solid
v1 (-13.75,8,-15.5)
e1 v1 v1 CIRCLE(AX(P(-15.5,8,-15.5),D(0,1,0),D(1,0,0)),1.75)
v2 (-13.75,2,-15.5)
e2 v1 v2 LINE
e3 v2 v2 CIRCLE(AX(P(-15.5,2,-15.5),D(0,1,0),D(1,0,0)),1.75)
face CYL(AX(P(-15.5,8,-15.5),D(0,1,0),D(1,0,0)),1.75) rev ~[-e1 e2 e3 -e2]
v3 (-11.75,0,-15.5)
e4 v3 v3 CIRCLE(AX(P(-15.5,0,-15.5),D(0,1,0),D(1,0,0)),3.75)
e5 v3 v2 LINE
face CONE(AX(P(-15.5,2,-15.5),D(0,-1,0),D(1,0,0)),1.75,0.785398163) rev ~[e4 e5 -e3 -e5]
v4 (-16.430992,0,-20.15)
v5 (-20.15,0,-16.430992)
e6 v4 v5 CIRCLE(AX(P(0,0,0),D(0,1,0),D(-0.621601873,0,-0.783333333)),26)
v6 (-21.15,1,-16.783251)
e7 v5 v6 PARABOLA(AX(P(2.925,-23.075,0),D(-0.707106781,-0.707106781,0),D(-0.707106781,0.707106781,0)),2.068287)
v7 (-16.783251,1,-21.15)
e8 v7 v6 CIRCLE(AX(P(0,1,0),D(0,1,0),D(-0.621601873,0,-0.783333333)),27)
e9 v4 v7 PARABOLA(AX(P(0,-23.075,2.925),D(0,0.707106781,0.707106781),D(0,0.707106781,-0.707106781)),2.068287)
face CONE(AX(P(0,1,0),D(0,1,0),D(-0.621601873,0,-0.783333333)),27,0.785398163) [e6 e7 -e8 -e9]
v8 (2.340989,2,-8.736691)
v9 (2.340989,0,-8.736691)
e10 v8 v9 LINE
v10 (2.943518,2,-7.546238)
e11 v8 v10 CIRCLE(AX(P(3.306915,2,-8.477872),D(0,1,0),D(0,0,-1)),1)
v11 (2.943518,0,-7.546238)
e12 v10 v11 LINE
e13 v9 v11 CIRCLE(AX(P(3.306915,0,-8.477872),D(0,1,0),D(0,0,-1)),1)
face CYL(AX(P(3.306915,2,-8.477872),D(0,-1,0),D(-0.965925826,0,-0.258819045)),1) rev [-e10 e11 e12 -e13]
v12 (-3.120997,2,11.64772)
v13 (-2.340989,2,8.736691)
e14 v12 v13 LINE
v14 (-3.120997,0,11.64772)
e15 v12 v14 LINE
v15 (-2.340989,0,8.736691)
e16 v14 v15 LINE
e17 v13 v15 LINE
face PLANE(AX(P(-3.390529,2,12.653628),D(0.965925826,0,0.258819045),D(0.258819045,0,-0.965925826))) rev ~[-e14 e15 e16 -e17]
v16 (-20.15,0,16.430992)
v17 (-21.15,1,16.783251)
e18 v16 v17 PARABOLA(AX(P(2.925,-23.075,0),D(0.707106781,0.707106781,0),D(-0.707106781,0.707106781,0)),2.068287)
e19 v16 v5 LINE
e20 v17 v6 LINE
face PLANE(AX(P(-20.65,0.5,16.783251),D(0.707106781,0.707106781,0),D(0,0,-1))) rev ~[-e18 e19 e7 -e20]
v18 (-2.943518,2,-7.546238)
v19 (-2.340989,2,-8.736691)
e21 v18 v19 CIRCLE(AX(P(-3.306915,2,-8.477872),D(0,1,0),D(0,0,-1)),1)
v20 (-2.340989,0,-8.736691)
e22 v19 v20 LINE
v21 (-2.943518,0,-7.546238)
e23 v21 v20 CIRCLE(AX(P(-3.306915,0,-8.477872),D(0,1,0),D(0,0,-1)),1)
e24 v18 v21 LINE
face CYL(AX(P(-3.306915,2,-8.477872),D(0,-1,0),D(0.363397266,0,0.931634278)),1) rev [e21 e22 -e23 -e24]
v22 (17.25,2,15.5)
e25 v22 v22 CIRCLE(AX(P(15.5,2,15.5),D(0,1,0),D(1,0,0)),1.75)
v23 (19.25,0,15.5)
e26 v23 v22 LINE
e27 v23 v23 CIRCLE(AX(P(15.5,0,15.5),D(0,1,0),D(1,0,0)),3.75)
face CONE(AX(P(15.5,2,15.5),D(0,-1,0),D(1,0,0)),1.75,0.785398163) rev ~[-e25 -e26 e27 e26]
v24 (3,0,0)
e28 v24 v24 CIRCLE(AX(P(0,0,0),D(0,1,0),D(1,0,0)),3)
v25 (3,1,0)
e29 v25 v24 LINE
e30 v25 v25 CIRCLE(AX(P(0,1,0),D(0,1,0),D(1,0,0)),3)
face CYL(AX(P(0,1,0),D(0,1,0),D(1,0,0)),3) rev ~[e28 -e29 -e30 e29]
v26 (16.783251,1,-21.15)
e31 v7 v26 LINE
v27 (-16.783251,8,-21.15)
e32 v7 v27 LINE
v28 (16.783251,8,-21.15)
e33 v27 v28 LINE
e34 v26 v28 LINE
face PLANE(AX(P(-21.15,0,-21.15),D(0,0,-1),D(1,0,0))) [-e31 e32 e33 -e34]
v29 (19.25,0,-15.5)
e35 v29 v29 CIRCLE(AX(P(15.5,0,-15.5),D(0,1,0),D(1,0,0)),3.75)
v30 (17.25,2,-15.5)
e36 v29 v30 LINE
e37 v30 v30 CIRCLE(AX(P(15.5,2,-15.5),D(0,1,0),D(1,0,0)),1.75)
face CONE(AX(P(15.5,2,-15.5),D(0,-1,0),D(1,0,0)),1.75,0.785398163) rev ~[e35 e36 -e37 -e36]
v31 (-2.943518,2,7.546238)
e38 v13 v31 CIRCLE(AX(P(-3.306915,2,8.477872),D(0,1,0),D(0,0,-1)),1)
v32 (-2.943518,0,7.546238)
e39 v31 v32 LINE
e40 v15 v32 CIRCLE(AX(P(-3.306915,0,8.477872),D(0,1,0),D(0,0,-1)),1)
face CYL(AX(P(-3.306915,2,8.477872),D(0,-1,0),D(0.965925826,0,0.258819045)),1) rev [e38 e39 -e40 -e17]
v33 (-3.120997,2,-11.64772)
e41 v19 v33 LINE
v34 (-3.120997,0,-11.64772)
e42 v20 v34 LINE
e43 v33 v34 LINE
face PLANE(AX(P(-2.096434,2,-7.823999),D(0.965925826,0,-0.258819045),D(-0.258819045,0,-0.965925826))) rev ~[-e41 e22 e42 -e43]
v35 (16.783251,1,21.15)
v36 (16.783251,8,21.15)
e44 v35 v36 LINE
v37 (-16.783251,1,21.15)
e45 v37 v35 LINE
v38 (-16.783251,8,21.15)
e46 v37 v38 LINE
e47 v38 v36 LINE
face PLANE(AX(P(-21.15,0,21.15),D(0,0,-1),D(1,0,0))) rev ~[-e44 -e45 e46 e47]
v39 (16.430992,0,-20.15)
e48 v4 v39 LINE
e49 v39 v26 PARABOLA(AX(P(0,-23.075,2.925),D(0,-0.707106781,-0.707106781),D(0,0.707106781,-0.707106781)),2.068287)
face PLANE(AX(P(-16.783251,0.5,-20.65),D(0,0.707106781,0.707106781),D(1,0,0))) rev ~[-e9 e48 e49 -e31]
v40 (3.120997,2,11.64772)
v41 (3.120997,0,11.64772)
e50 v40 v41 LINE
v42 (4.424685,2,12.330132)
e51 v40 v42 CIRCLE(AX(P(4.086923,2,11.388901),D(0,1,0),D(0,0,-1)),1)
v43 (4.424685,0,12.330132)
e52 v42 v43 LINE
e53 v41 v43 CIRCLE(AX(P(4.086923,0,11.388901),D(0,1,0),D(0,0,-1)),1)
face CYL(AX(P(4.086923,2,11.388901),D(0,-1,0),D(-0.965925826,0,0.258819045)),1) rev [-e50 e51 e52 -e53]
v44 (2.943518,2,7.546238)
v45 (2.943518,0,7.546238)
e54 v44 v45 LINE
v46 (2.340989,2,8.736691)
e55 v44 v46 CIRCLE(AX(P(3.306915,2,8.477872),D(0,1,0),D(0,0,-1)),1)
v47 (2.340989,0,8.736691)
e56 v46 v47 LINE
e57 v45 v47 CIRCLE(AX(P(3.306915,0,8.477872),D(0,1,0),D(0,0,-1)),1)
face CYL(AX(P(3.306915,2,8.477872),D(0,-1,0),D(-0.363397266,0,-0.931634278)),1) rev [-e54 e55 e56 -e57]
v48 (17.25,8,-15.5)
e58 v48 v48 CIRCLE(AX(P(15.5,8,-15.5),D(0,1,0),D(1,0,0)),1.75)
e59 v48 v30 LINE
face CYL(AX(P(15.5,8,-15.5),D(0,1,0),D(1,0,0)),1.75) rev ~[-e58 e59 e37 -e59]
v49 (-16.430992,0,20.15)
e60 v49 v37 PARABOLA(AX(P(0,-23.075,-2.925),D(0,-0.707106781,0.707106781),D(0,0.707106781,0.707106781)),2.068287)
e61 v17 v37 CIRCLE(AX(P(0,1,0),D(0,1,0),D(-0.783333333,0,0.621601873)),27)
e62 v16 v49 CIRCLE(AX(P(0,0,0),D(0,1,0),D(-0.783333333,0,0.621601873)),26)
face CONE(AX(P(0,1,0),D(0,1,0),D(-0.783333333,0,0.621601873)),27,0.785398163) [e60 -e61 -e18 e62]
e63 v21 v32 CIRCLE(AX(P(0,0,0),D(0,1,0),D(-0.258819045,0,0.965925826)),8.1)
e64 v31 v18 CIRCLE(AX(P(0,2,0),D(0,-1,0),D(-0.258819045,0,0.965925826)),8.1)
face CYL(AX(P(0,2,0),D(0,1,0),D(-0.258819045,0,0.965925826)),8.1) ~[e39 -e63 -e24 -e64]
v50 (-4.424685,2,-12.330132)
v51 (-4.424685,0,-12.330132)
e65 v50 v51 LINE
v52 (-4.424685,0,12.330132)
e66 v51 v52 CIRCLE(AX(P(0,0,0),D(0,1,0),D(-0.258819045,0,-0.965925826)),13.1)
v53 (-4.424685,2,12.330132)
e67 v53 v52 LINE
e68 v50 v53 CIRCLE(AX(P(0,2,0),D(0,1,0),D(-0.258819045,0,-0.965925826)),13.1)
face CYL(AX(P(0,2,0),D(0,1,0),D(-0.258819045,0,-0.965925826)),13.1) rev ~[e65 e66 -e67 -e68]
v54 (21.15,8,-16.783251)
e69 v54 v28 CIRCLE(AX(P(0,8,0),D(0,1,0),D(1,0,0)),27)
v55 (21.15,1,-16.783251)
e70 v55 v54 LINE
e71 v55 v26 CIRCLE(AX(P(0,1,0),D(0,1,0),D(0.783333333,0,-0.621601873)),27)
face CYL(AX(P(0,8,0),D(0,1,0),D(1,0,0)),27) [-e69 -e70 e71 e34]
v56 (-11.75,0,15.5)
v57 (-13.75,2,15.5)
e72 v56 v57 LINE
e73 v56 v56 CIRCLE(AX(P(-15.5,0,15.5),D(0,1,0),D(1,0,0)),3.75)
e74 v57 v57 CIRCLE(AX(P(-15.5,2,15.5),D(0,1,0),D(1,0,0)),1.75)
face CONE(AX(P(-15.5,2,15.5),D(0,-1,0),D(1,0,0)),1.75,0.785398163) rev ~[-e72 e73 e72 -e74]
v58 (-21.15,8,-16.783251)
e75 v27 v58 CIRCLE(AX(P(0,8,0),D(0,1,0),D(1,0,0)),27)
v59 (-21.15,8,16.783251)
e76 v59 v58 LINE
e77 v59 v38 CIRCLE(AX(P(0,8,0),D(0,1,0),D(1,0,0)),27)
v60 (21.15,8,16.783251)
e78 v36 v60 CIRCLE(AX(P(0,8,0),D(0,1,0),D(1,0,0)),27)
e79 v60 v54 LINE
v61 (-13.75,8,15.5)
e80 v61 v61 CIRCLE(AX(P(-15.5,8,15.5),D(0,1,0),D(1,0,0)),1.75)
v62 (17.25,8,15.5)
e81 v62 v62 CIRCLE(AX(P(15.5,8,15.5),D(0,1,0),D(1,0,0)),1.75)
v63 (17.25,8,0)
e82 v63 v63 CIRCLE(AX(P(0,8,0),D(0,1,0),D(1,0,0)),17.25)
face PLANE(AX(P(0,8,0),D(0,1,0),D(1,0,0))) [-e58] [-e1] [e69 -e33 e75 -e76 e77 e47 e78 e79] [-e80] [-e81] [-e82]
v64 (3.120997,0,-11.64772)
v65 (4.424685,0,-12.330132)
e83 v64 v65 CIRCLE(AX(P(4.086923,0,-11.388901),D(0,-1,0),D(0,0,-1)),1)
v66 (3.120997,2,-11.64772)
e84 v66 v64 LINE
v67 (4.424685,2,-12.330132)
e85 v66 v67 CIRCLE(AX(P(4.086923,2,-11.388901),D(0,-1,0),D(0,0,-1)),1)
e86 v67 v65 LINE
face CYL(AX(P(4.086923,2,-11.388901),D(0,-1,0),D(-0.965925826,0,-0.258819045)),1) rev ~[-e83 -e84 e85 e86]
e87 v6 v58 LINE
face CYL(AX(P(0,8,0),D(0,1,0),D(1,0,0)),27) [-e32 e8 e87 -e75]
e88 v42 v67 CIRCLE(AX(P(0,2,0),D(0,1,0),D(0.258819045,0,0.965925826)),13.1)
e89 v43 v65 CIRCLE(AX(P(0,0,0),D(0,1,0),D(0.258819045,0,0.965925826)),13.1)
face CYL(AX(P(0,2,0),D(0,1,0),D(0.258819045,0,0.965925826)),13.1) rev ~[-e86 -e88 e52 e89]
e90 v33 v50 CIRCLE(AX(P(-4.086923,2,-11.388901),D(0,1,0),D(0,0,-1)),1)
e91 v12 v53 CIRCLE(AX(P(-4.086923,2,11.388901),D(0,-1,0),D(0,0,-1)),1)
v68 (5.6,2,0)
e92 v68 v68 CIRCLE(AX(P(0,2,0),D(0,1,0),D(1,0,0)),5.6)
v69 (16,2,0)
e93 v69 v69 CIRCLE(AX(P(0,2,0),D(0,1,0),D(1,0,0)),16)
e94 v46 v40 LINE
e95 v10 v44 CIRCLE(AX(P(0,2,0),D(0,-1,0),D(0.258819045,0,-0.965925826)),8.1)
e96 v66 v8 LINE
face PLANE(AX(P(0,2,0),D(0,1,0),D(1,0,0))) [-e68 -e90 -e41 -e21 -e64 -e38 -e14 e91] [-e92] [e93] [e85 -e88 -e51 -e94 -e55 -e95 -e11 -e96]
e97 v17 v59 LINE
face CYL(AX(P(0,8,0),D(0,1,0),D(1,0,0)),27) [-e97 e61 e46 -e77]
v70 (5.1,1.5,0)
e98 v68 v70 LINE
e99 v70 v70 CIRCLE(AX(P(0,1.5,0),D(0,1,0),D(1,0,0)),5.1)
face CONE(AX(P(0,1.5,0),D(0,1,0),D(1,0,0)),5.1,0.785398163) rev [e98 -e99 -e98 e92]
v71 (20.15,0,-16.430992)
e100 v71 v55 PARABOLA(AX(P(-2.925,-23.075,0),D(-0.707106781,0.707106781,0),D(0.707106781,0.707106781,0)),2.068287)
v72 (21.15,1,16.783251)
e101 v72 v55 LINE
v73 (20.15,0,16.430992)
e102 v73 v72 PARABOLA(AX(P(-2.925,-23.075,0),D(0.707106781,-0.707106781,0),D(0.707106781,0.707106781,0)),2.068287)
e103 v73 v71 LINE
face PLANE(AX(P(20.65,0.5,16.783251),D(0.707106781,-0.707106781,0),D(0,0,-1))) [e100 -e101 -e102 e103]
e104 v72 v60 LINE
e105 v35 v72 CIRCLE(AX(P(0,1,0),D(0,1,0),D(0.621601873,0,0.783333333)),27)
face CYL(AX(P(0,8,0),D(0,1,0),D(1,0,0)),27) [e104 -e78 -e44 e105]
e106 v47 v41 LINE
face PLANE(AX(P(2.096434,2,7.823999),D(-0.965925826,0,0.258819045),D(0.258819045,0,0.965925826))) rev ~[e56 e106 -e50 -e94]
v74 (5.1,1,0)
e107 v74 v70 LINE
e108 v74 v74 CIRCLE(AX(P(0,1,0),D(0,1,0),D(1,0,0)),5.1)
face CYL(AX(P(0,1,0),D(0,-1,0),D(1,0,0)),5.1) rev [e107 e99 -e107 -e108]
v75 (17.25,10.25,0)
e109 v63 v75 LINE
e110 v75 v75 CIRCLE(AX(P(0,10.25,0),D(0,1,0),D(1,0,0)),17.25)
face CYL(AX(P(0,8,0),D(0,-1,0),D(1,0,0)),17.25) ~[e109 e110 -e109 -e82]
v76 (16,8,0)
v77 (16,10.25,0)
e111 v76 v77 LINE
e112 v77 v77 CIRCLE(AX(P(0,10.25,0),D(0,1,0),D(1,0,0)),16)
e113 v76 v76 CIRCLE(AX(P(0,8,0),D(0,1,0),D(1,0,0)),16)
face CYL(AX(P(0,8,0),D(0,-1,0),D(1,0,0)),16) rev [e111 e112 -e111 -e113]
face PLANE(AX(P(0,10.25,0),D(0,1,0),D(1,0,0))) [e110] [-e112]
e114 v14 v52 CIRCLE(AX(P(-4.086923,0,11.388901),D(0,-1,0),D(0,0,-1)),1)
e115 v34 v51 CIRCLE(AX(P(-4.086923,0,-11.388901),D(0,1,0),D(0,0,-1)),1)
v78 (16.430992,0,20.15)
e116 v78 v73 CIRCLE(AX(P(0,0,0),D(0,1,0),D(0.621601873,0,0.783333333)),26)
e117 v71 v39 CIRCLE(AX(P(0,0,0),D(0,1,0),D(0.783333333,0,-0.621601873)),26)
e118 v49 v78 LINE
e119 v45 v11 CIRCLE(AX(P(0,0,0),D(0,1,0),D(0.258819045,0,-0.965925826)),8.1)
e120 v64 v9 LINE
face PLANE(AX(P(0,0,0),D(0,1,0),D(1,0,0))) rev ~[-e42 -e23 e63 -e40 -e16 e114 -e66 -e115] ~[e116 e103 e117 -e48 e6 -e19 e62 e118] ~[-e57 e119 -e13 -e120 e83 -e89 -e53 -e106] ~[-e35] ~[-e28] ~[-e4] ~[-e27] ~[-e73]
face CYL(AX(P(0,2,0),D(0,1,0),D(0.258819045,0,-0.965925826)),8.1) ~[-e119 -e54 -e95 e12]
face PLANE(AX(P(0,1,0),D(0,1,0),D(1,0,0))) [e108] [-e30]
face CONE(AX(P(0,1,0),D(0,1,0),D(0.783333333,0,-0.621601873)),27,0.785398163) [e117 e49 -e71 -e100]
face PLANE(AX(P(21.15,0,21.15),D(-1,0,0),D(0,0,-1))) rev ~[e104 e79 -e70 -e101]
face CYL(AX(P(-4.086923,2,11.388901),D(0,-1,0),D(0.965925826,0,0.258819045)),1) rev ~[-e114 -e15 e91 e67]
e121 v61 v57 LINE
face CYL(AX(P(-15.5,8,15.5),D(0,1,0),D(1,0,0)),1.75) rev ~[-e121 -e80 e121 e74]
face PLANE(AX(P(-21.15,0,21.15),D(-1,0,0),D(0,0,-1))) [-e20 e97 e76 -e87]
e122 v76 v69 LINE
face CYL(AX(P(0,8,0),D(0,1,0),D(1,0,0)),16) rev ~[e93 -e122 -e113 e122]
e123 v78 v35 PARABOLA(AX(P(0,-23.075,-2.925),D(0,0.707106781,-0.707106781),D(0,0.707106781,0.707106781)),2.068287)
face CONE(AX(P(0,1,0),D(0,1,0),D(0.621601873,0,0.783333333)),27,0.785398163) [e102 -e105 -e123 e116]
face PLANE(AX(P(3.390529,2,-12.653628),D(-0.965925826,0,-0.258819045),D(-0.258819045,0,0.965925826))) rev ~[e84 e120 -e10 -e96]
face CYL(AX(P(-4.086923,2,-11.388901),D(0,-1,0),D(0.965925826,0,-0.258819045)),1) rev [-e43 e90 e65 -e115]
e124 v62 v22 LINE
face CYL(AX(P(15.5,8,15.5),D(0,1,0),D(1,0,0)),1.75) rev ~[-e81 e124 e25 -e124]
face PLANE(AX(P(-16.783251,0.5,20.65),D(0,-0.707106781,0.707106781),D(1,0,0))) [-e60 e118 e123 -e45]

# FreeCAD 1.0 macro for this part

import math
import FreeCAD as App
import Part
import Sketcher

V = App.Vector
Q = App.Units.Quantity


def edges_at(feature, points):
    """Names of the edges that pass closest to the given points."""
    edges = feature.Shape.Edges
    near = lambda p: min(range(len(edges)), key=lambda i: edges[i].distToShape(Part.Vertex(*p))[0])
    return sorted({f"Edge{near(p) + 1}" for p in points})


def add_polygon(sketch, points):
    """Adds a closed chain of lines whose ends are joined by coincident constraints."""
    first, n = sketch.GeometryCount, len(points)
    for a, b in zip(points, points[1:] + points[:1]):
        sketch.addGeometry(Part.LineSegment(App.Vector(*a, 0), App.Vector(*b, 0)), False)
    for i in range(n):
        sketch.addConstraint(Sketcher.Constraint("Coincident", first + i, 2, first + (i + 1) % n, 1))

doc = App.newDocument("Part")
body = doc.addObject("PartDesign::Body", "Body")

sketch1 = doc.addObject("Sketcher::SketchObject", "Sketch")
body.addObject(sketch1)
sketch1.AttachmentSupport = (doc.XZ_Plane, [""])
sketch1.MapMode = "FlatFace"
add_polygon(sketch1, [(-21, -21), (-21, 21), (21, 21), (21, -21)])
sketch1.addConstraint([
    Sketcher.Constraint("Vertical", 0),
    Sketcher.Constraint("Horizontal", 1),
    Sketcher.Constraint("Vertical", 2),
    Sketcher.Constraint("Horizontal", 3),
    Sketcher.Constraint("Symmetric", 0, 2, 2, 2, -1, 1),
    Sketcher.Constraint("Equal", 3, 0),
    Sketcher.Constraint("DistanceX", 1, 1, 1, 2, 42.3),
])
pad1 = doc.addObject("PartDesign::Pad", "Pad")
body.addObject(pad1)
pad1.Profile = sketch1
pad1.Length = 8
pad1.Reversed = True

sketch2 = doc.addObject("Sketcher::SketchObject", "Sketch001")
body.addObject(sketch2)
sketch2.AttachmentSupport = (doc.XZ_Plane, [""])
sketch2.MapMode = "FlatFace"
sketch2.AttachmentOffset = App.Placement(V(0, 0, -8), App.Rotation())
sketch2.addGeometry([
    Part.Circle(V(0, 0, 0), V(0, 0, 1), 30),
    Part.Circle(V(0, 0, 0), V(0, 0, 1), 27),
], False)
sketch2.addConstraint([
    Sketcher.Constraint("Coincident", 0, 3, -1, 1),
    Sketcher.Constraint("Coincident", 1, 3, -1, 1),
    Sketcher.Constraint("Diameter", 1, 54.0),
    Sketcher.Constraint("Diameter", 0, 59.821234),
])
pocket1 = doc.addObject("PartDesign::Pocket", "Pocket")
body.addObject(pocket1)
pocket1.Profile = sketch2
pocket1.Type = "ThroughAll"
pocket1.Reversed = True

sketch3 = doc.addObject("Sketcher::SketchObject", "Sketch002")
body.addObject(sketch3)
sketch3.AttachmentSupport = (doc.XZ_Plane, [""])
sketch3.MapMode = "FlatFace"
sketch3.AttachmentOffset = App.Placement(V(0, 0, -8), App.Rotation())
sketch3.addGeometry(Part.Circle(V(0, 0, 0), V(0, 0, 1), 16), False)
sketch3.addConstraint([
    Sketcher.Constraint("Coincident", 0, 3, -1, 1),
    Sketcher.Constraint("Diameter", 0, 32.0),
])
pocket2 = doc.addObject("PartDesign::Pocket", "Pocket001")
body.addObject(pocket2)
pocket2.Profile = sketch3
pocket2.Length = 7
pocket2.Reversed = True

sketch4 = doc.addObject("Sketcher::SketchObject", "Sketch003")
body.addObject(sketch4)
sketch4.AttachmentSupport = (doc.XZ_Plane, [""])
sketch4.MapMode = "FlatFace"
sketch4.AttachmentOffset = App.Placement(V(0, 0, -1), App.Rotation())
sketch4.addGeometry([
    Part.Circle(V(0, 0, 0), V(0, 0, 1), 16),
    Part.Circle(V(0, 0, 0), V(0, 0, 1), 5),
], False)
sketch4.addConstraint([
    Sketcher.Constraint("Coincident", 0, 3, -1, 1),
    Sketcher.Constraint("Coincident", 1, 3, -1, 1),
    Sketcher.Constraint("Diameter", 0, 32.0),
    Sketcher.Constraint("Diameter", 1, 10.2),
])
pad2 = doc.addObject("PartDesign::Pad", "Pad001")
body.addObject(pad2)
pad2.Profile = sketch4
pad2.Length = 1
pad2.Reversed = True

sketch5 = doc.addObject("Sketcher::SketchObject", "Sketch004")
body.addObject(sketch5)
sketch5.AttachmentSupport = (doc.XZ_Plane, [""])
sketch5.MapMode = "FlatFace"
sketch5.AttachmentOffset = App.Placement(V(0, 0, -2), App.Rotation())
sketch5.addGeometry([
    Part.LineSegment(V(3.4, -12.7, 0), V(2.1, -7.8, 0)),
    Part.ArcOfCircle(Part.Circle(V(0, 0, 0), V(0, 0, 1), 8.1), math.radians(-75), math.radians(75)),
    Part.LineSegment(V(2.1, 7.8, 0), V(3.4, 12.7, 0)),
    Part.ArcOfCircle(Part.Circle(V(0, 0, 0), V(0, 0, 1), 13.1), math.radians(-75), math.radians(75)),
    Part.LineSegment(V(-3.4, 12.7, 0), V(-2.1, 7.8, 0)),
    Part.ArcOfCircle(Part.Circle(V(0, 0, 0), V(0, 0, 1), 8.1), math.radians(105), math.radians(255)),
    Part.LineSegment(V(-2.1, -7.8, 0), V(-3.4, -12.7, 0)),
    Part.ArcOfCircle(Part.Circle(V(0, 0, 0), V(0, 0, 1), 13.1), math.radians(105), math.radians(255)),
], False)
sketch5.addConstraint([
    Sketcher.Constraint("Coincident", 0, 2, 1, 1),
    Sketcher.Constraint("Coincident", 1, 2, 2, 1),
    Sketcher.Constraint("Coincident", 2, 2, 3, 2),
    Sketcher.Constraint("Coincident", 3, 1, 0, 1),
    Sketcher.Constraint("Coincident", 4, 2, 5, 1),
    Sketcher.Constraint("Coincident", 5, 2, 6, 1),
    Sketcher.Constraint("Coincident", 6, 2, 7, 2),
    Sketcher.Constraint("Coincident", 7, 1, 4, 1),
    Sketcher.Constraint("Coincident", 1, 3, -1, 1),
    Sketcher.Constraint("Coincident", 3, 3, -1, 1),
    Sketcher.Constraint("Coincident", 5, 3, -1, 1),
    Sketcher.Constraint("Coincident", 7, 3, -1, 1),
    Sketcher.Constraint("Equal", 1, 5),
    Sketcher.Constraint("Equal", 3, 7),
    Sketcher.Constraint("Parallel", 0, 4),
    Sketcher.Constraint("Parallel", 2, 6),
    Sketcher.Constraint("Horizontal", 1, 2, 4, 2),
    Sketcher.Constraint("Horizontal", 0, 2, 5, 2),
    Sketcher.Constraint("Horizontal", 3, 1, 6, 2),
    Sketcher.Constraint("Vertical", 0, 2, 1, 2),
    Sketcher.Constraint("Radius", 1, 8.1),
    Sketcher.Constraint("Radius", 3, 13.1),
    Sketcher.Constraint("Angle", 0, Q("105 deg")),
    Sketcher.Constraint("DistanceY", 0, 2, -1, 1, 7.823999),
])
pocket3 = doc.addObject("PartDesign::Pocket", "Pocket002")
body.addObject(pocket3)
pocket3.Profile = sketch5
pocket3.Type = "ThroughAll"
pocket3.Reversed = True
doc.recompute()

fillet = doc.addObject("PartDesign::Fillet", "Fillet")
body.addObject(fillet)
fillet.Base = (pocket3, edges_at(pocket3, [
    (3.391, 1, -12.654),
    (3.391, 1, 12.654),
    (2.096, 1, 7.824),
    (2.096, 1, -7.824),
    (-2.096, 1, -7.824),
    (-2.096, 1, 7.824),
    (-3.391, 1, 12.654),
    (-3.391, 1, -12.654),
]))
fillet.Radius = 1

sketch6 = doc.addObject("Sketcher::SketchObject", "Sketch005")
body.addObject(sketch6)
sketch6.AttachmentSupport = (doc.XZ_Plane, [""])
sketch6.MapMode = "FlatFace"
sketch6.AttachmentOffset = App.Placement(V(0, 0, -1), App.Rotation())
sketch6.addGeometry(Part.Circle(V(0, 0, 0), V(0, 0, 1), 3), False)
sketch6.addConstraint([
    Sketcher.Constraint("Coincident", 0, 3, -1, 1),
    Sketcher.Constraint("Diameter", 0, 6.0),
])
pocket4 = doc.addObject("PartDesign::Pocket", "Pocket003")
body.addObject(pocket4)
pocket4.Profile = sketch6
pocket4.Type = "ThroughAll"
pocket4.Reversed = True

sketch7 = doc.addObject("Sketcher::SketchObject", "Sketch006")
body.addObject(sketch7)
sketch7.AttachmentSupport = (doc.XZ_Plane, [""])
sketch7.MapMode = "FlatFace"
sketch7.AttachmentOffset = App.Placement(V(0, 0, -8), App.Rotation())
sketch7.addGeometry([
    Part.Circle(V(-15.5, -15.5, 0), V(0, 0, 1), 1.8),
    Part.Circle(V(15.5, -15.5, 0), V(0, 0, 1), 1.8),
    Part.Circle(V(15.5, 15.5, 0), V(0, 0, 1), 1.8),
    Part.Circle(V(-15.5, 15.5, 0), V(0, 0, 1), 1.8),
], False)
sketch7.addConstraint([
    Sketcher.Constraint("Equal", 0, 1),
    Sketcher.Constraint("Equal", 1, 2),
    Sketcher.Constraint("Equal", 2, 3),
    Sketcher.Constraint("Symmetric", 0, 3, 2, 3, -1, 1),
    Sketcher.Constraint("Symmetric", 1, 3, 3, 3, -1, 1),
    Sketcher.Constraint("Symmetric", 0, 3, 1, 3, -2),
    Sketcher.Constraint("Diameter", 0, 3.5),
    Sketcher.Constraint("DistanceX", 0, 3, 1, 3, 31.0),
    Sketcher.Constraint("DistanceY", 1, 3, 2, 3, 31.0),
])
pocket5 = doc.addObject("PartDesign::Pocket", "Pocket004")
body.addObject(pocket5)
pocket5.Profile = sketch7
pocket5.Type = "ThroughAll"
pocket5.Reversed = True
doc.recompute()

chamfer = doc.addObject("PartDesign::Chamfer", "Chamfer")
body.addObject(chamfer)
chamfer.Base = (pocket5, edges_at(pocket5, [
    (21.15, 0, 0),
    (0, 0, 21.15),
    (-21.15, 0, 0),
    (0, 0, -21.15),
    (-19.092, 0, 19.092),
    (-19.092, 0, -19.092),
    (19.092, 0, -19.092),
    (19.092, 0, 19.092),
]))
chamfer.Size = 1
doc.recompute()

chamfer2 = doc.addObject("PartDesign::Chamfer", "Chamfer001")
body.addObject(chamfer2)
chamfer2.Base = (chamfer, edges_at(chamfer, [
    (-17.25, 0, 15.5),
    (13.75, 0, 15.5),
    (13.75, 0, -15.5),
    (-17.25, 0, -15.5),
]))
chamfer2.Size = 2
doc.recompute()

chamfer3 = doc.addObject("PartDesign::Chamfer", "Chamfer002")
body.addObject(chamfer3)
chamfer3.Base = (chamfer2, edges_at(chamfer2, [(-5.1, 2, 0)]))
chamfer3.Size = 0.5

sketch8 = doc.addObject("Sketcher::SketchObject", "Sketch007")
body.addObject(sketch8)
sketch8.AttachmentSupport = (doc.XZ_Plane, [""])
sketch8.MapMode = "FlatFace"
sketch8.AttachmentOffset = App.Placement(V(0, 0, -8), App.Rotation())
sketch8.addGeometry([
    Part.Circle(V(0, 0, 0), V(0, 0, 1), 17),
    Part.Circle(V(0, 0, 0), V(0, 0, 1), 16),
], False)
sketch8.addConstraint([
    Sketcher.Constraint("Coincident", 0, 3, -1, 1),
    Sketcher.Constraint("Coincident", 1, 3, -1, 1),
    Sketcher.Constraint("Diameter", 1, 32.0),
    Sketcher.Constraint("Diameter", 0, 34.5),
])
pad3 = doc.addObject("PartDesign::Pad", "Pad002")
body.addObject(pad3)
pad3.Profile = sketch8
pad3.Length = 2.25
pad3.Reversed = True

doc.recompute()
